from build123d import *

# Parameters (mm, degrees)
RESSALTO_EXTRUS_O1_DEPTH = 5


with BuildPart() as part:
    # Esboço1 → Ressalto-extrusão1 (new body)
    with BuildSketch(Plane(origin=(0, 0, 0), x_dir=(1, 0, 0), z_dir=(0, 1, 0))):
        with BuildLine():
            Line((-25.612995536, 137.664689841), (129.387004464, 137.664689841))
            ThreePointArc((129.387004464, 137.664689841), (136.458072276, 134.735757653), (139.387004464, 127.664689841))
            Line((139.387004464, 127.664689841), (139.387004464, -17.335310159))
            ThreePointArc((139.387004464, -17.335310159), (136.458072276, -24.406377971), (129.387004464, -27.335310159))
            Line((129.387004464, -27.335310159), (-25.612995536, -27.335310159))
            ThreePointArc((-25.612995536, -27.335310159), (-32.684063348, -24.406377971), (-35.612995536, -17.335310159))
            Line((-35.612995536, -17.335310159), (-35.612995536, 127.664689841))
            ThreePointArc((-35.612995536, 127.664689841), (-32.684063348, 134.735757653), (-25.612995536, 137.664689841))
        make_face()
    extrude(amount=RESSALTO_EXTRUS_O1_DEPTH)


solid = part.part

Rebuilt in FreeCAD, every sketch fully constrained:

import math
import FreeCAD as App
import Part
import Sketcher
Q = App.Units.Quantity

doc = App.newDocument("Part")
params = doc.addObject("Spreadsheet::Sheet", "Params")
for row, (alias, value) in enumerate([
    ("sketch1_radius", "10 mm"),
    ("sketch1_width", "155 mm"),
    ("sketch1_height", "145 mm"),
    ("pad1_length", "5 mm"),
], start=1):
    params.set(f"A{row}", alias)
    params.set(f"B{row}", "=" + value)
    params.setAlias(f"B{row}", alias)

body = doc.addObject("PartDesign::Body", "Body")

# Sketch on XZ plane
sketch1 = doc.addObject("Sketcher::SketchObject", "Sketch")
body.addObject(sketch1)
sketch1.AttachmentSupport = (doc.XZ_Plane, [""])
sketch1.MapMode = "FlatFace"
sketch1.addGeometry([
    Part.LineSegment(App.Vector(129, -138, 0), App.Vector(-26, -138, 0)),  # 0
    Part.ArcOfCircle(Part.Circle(App.Vector(-26, -128, 0), App.Vector(0, 0, 1), 10), math.radians(180), math.radians(270)),  # 1
    Part.LineSegment(App.Vector(-36, -128, 0), App.Vector(-36, 17, 0)),  # 2
    Part.ArcOfCircle(Part.Circle(App.Vector(-26, 17, 0), App.Vector(0, 0, 1), 10), math.radians(90), math.radians(180)),  # 3
    Part.LineSegment(App.Vector(-26, 27, 0), App.Vector(129, 27, 0)),  # 4
    Part.ArcOfCircle(Part.Circle(App.Vector(129, 17, 0), App.Vector(0, 0, 1), 10), math.radians(0), math.radians(90)),  # 5
    Part.LineSegment(App.Vector(139, 17, 0), App.Vector(139, -128, 0)),  # 6
    Part.ArcOfCircle(Part.Circle(App.Vector(129, -128, 0), App.Vector(0, 0, 1), 10), math.radians(-90), math.radians(0)),  # 7
], False)
sketch1.addConstraint([
    Sketcher.Constraint("Tangent", 0, 2, 1, 2),
    Sketcher.Constraint("Tangent", 1, 1, 2, 1),
    Sketcher.Constraint("Tangent", 2, 2, 3, 2),
    Sketcher.Constraint("Tangent", 3, 1, 4, 1),
    Sketcher.Constraint("Tangent", 4, 2, 5, 2),
    Sketcher.Constraint("Tangent", 5, 1, 6, 1),
    Sketcher.Constraint("Tangent", 6, 2, 7, 2),
    Sketcher.Constraint("Tangent", 7, 1, 0, 1),
    Sketcher.Constraint("Horizontal", 0),
    Sketcher.Constraint("Vertical", 2),
    Sketcher.Constraint("Horizontal", 4),
    Sketcher.Constraint("Vertical", 6),
    Sketcher.Constraint("Equal", 1, 3),
    Sketcher.Constraint("Equal", 3, 5),
    Sketcher.Constraint("Equal", 5, 7),
    Sketcher.Constraint("Radius", 1, Q("10 mm")),
    Sketcher.Constraint("DistanceX", 0, 2, 0, 1, Q("155 mm")),
    Sketcher.Constraint("DistanceY", 2, 1, 2, 2, Q("145 mm")),
    Sketcher.Constraint("DistanceY", 1, 3, -1, 1, Q("127.66469 mm")),
    Sketcher.Constraint("DistanceX", 1, 3, -1, 1, Q("25.612996 mm")),
])
sketch1.setExpression("Constraints[15]", "Params.sketch1_radius")
sketch1.setExpression("Constraints[16]", "Params.sketch1_width")
sketch1.setExpression("Constraints[17]", "Params.sketch1_height")
pad1 = doc.addObject("PartDesign::Pad", "Pad")
body.addObject(pad1)
pad1.Profile = sketch1
pad1.setExpression("Length", "Params.pad1_length")
pad1.Reversed = True

doc.recompute()
